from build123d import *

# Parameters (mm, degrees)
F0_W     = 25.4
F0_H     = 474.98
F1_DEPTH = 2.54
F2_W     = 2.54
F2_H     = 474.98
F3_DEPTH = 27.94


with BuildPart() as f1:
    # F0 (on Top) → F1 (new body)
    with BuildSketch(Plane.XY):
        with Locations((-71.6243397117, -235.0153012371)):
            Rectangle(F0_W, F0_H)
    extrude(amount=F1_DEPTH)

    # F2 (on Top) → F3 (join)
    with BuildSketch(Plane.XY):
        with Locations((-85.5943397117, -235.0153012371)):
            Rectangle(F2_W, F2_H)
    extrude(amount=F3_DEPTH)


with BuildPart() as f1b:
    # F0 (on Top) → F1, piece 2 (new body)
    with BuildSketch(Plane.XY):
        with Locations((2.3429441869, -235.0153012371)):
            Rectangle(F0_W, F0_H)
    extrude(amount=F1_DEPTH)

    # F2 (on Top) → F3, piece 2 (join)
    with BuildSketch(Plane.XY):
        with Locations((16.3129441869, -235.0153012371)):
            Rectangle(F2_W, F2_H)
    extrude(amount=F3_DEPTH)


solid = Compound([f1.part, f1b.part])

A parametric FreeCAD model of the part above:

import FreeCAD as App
import Part
import Sketcher
Q = App.Units.Quantity

doc = App.newDocument("Part")
body = doc.addObject("PartDesign::Body", "Body")

sketch1 = body.newObject("Sketcher::SketchObject", "Sketch")
sketch1.AttachmentSupport = (doc.getObject("XY_Plane"), [""])
sketch1.MapMode = "FlatFace"
sketch1.addGeometry(Part.LineSegment(App.Vector(-84.32434, 2.474699, 0), App.Vector(-84.32434, -472.505301, 0)), False)
sketch1.addGeometry(Part.LineSegment(App.Vector(-84.32434, -472.505301, 0), App.Vector(-58.92434, -472.505301, 0)), False)
sketch1.addGeometry(Part.LineSegment(App.Vector(-58.92434, -472.505301, 0), App.Vector(-58.92434, 2.474699, 0)), False)
sketch1.addGeometry(Part.LineSegment(App.Vector(-58.92434, 2.474699, 0), App.Vector(-84.32434, 2.474699, 0)), False)
sketch1.addConstraint(Sketcher.Constraint("Coincident", 0, 2, 1, 1))
sketch1.addConstraint(Sketcher.Constraint("Coincident", 1, 2, 2, 1))
sketch1.addConstraint(Sketcher.Constraint("Coincident", 2, 2, 3, 1))
sketch1.addConstraint(Sketcher.Constraint("Coincident", 3, 2, 0, 1))
sketch1.addConstraint(Sketcher.Constraint("Vertical", 0))
sketch1.addConstraint(Sketcher.Constraint("Horizontal", 1))
sketch1.addConstraint(Sketcher.Constraint("Vertical", 2))
sketch1.addConstraint(Sketcher.Constraint("Horizontal", 3))
sketch1.addConstraint(Sketcher.Constraint("DistanceX", 1, 1, 1, 2, Q("1 in")))
sketch1.addConstraint(Sketcher.Constraint("DistanceY", 0, 2, 0, 1, Q("18.7 in")))
sketch1.addConstraint(Sketcher.Constraint("DistanceY", 0, 2, -1, 1, 472.505301))
sketch1.addConstraint(Sketcher.Constraint("DistanceX", 0, 2, -1, 1, 84.32434))
pad1 = body.newObject("PartDesign::Pad", "Pad")
pad1.Profile = sketch1
pad1.Length = Q("0.1 in")

sketch2 = body.newObject("Sketcher::SketchObject", "Sketch001")
sketch2.AttachmentSupport = (doc.getObject("XY_Plane"), [""])
sketch2.MapMode = "FlatFace"
sketch2.addGeometry(Part.LineSegment(App.Vector(-86.86434, 2.474699, 0), App.Vector(-86.86434, -472.505301, 0)), False)
sketch2.addGeometry(Part.LineSegment(App.Vector(-86.86434, -472.505301, 0), App.Vector(-84.32434, -472.505301, 0)), False)
sketch2.addGeometry(Part.LineSegment(App.Vector(-84.32434, -472.505301, 0), App.Vector(-84.32434, 2.474699, 0)), False)
sketch2.addGeometry(Part.LineSegment(App.Vector(-84.32434, 2.474699, 0), App.Vector(-86.86434, 2.474699, 0)), False)
sketch2.addConstraint(Sketcher.Constraint("Coincident", 0, 2, 1, 1))
sketch2.addConstraint(Sketcher.Constraint("Coincident", 1, 2, 2, 1))
sketch2.addConstraint(Sketcher.Constraint("Coincident", 2, 2, 3, 1))
sketch2.addConstraint(Sketcher.Constraint("Coincident", 3, 2, 0, 1))
sketch2.addConstraint(Sketcher.Constraint("Vertical", 0))
sketch2.addConstraint(Sketcher.Constraint("Horizontal", 1))
sketch2.addConstraint(Sketcher.Constraint("Vertical", 2))
sketch2.addConstraint(Sketcher.Constraint("Horizontal", 3))
sketch2.addConstraint(Sketcher.Constraint("DistanceX", 1, 1, 1, 2, Q("0.1 in")))
sketch2.addConstraint(Sketcher.Constraint("DistanceY", 0, 2, 0, 1, Q("18.7 in")))
sketch2.addConstraint(Sketcher.Constraint("DistanceY", 0, 2, -1, 1, 472.505301))
sketch2.addConstraint(Sketcher.Constraint("DistanceX", 0, 2, -1, 1, 86.86434))
pad2 = body.newObject("PartDesign::Pad", "Pad001")
pad2.Profile = sketch2
pad2.Length = Q("1.1 in")
body2 = doc.addObject("PartDesign::Body", "Body001")

sketch3 = body2.newObject("Sketcher::SketchObject", "Sketch002")
sketch3.AttachmentSupport = (doc.getObject("XY_Plane001"), [""])
sketch3.MapMode = "FlatFace"
sketch3.addGeometry(Part.LineSegment(App.Vector(-10.357056, 2.474699, 0), App.Vector(-10.357056, -472.505301, 0)), False)
sketch3.addGeometry(Part.LineSegment(App.Vector(-10.357056, -472.505301, 0), App.Vector(15.042944, -472.505301, 0)), False)
sketch3.addGeometry(Part.LineSegment(App.Vector(15.042944, -472.505301, 0), App.Vector(15.042944, 2.474699, 0)), False)
sketch3.addGeometry(Part.LineSegment(App.Vector(15.042944, 2.474699, 0), App.Vector(-10.357056, 2.474699, 0)), False)
sketch3.addConstraint(Sketcher.Constraint("Coincident", 0, 2, 1, 1))
sketch3.addConstraint(Sketcher.Constraint("Coincident", 1, 2, 2, 1))
sketch3.addConstraint(Sketcher.Constraint("Coincident", 2, 2, 3, 1))
sketch3.addConstraint(Sketcher.Constraint("Coincident", 3, 2, 0, 1))
sketch3.addConstraint(Sketcher.Constraint("Vertical", 0))
sketch3.addConstraint(Sketcher.Constraint("Horizontal", 1))
sketch3.addConstraint(Sketcher.Constraint("Vertical", 2))
sketch3.addConstraint(Sketcher.Constraint("Horizontal", 3))
sketch3.addConstraint(Sketcher.Constraint("DistanceX", 1, 1, 1, 2, Q("1 in")))
sketch3.addConstraint(Sketcher.Constraint("DistanceY", 0, 2, 0, 1, Q("18.7 in")))
sketch3.addConstraint(Sketcher.Constraint("DistanceY", 0, 2, -1, 1, 472.505301))
sketch3.addConstraint(Sketcher.Constraint("DistanceX", 0, 2, -1, 1, 10.357056))
pad3 = body2.newObject("PartDesign::Pad", "Pad002")
pad3.Profile = sketch3
pad3.Length = Q("0.1 in")

sketch4 = body2.newObject("Sketcher::SketchObject", "Sketch003")
sketch4.AttachmentSupport = (doc.getObject("XY_Plane001"), [""])
sketch4.MapMode = "FlatFace"
sketch4.addGeometry(Part.LineSegment(App.Vector(15.042944, 2.474699, 0), App.Vector(15.042944, -472.505301, 0)), False)
sketch4.addGeometry(Part.LineSegment(App.Vector(15.042944, -472.505301, 0), App.Vector(17.582944, -472.505301, 0)), False)
sketch4.addGeometry(Part.LineSegment(App.Vector(17.582944, -472.505301, 0), App.Vector(17.582944, 2.474699, 0)), False)
sketch4.addGeometry(Part.LineSegment(App.Vector(17.582944, 2.474699, 0), App.Vector(15.042944, 2.474699, 0)), False)
sketch4.addConstraint(Sketcher.Constraint("Coincident", 0, 2, 1, 1))
sketch4.addConstraint(Sketcher.Constraint("Coincident", 1, 2, 2, 1))
sketch4.addConstraint(Sketcher.Constraint("Coincident", 2, 2, 3, 1))
sketch4.addConstraint(Sketcher.Constraint("Coincident", 3, 2, 0, 1))
sketch4.addConstraint(Sketcher.Constraint("Vertical", 0))
sketch4.addConstraint(Sketcher.Constraint("Horizontal", 1))
sketch4.addConstraint(Sketcher.Constraint("Vertical", 2))
sketch4.addConstraint(Sketcher.Constraint("Horizontal", 3))
sketch4.addConstraint(Sketcher.Constraint("DistanceX", 1, 1, 1, 2, Q("0.1 in")))
sketch4.addConstraint(Sketcher.Constraint("DistanceY", 0, 2, 0, 1, Q("18.7 in")))
sketch4.addConstraint(Sketcher.Constraint("DistanceY", 0, 2, -1, 1, 472.505301))
sketch4.addConstraint(Sketcher.Constraint("DistanceX", -1, 1, 0, 2, 15.042944))
pad4 = body2.newObject("PartDesign::Pad", "Pad003")
pad4.Profile = sketch4
pad4.Length = Q("1.1 in")

doc.recompute()
